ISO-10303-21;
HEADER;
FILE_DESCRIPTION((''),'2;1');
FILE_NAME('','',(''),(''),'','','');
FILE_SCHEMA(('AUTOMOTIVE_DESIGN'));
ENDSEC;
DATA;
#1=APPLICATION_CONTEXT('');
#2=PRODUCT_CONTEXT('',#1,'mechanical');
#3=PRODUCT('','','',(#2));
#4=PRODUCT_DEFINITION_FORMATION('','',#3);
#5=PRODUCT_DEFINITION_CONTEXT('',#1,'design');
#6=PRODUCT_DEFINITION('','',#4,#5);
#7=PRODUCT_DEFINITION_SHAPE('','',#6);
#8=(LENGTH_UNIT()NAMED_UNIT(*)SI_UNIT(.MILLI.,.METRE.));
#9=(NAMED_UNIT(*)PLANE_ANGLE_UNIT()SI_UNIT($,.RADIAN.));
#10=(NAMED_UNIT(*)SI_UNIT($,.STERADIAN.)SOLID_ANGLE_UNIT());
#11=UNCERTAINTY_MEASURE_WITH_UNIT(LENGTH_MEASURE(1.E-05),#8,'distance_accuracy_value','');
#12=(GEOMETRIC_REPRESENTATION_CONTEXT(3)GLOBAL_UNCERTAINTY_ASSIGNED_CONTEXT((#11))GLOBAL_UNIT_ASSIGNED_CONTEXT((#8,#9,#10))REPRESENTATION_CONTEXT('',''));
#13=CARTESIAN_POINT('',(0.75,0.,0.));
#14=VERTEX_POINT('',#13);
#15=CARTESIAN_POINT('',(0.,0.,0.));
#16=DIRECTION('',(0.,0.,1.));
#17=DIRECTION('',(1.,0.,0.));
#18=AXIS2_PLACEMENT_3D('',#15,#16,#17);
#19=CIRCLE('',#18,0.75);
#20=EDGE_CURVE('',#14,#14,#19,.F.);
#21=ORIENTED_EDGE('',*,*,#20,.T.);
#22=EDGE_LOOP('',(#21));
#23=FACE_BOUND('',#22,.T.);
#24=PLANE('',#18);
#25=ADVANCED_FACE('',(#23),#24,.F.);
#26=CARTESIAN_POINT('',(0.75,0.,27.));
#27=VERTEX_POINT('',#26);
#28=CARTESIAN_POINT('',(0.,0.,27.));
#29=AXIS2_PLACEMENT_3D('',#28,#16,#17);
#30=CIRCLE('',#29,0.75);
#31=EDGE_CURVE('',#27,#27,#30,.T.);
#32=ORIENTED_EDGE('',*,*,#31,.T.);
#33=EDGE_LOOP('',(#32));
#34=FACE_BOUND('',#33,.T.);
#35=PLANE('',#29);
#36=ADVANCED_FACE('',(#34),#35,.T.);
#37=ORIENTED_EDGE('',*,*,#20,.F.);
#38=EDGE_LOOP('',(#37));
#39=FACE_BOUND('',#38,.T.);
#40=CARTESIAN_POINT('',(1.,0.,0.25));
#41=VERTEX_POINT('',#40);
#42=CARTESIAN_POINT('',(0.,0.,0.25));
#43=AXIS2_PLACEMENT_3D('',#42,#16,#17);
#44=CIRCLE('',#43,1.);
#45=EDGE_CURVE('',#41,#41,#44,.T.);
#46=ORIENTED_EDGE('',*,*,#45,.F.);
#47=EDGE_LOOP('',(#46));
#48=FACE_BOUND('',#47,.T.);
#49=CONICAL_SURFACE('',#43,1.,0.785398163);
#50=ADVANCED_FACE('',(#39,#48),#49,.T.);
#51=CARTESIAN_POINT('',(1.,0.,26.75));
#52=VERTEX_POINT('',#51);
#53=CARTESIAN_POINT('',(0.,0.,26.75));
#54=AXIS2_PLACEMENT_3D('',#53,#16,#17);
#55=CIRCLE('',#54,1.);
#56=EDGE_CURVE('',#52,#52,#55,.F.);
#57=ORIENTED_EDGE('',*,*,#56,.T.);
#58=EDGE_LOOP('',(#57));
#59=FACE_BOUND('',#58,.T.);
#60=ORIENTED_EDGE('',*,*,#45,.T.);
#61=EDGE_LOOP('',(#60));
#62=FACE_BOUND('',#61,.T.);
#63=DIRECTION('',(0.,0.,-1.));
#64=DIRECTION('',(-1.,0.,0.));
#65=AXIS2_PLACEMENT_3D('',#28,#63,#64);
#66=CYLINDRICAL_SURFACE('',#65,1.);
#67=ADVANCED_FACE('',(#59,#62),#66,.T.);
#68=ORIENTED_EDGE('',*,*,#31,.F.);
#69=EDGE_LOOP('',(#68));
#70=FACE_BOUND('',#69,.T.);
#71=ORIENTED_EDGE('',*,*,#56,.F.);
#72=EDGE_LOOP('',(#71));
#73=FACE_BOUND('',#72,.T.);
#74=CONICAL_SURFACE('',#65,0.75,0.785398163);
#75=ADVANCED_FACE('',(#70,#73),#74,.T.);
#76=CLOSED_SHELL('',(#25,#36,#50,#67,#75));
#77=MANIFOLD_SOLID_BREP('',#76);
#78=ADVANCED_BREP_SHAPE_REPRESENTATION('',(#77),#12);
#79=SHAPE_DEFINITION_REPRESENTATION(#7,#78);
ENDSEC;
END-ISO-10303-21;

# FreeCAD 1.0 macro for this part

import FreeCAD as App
import Part
import Sketcher

V = App.Vector
Q = App.Units.Quantity


def edges_at(feature, points):
    """Names of the edges that pass closest to the given points."""
    edges = feature.Shape.Edges
    near = lambda p: min(range(len(edges)), key=lambda i: edges[i].distToShape(Part.Vertex(*p))[0])
    return sorted({f"Edge{near(p) + 1}" for p in points})

doc = App.newDocument("Part")
params = doc.addObject("Spreadsheet::Sheet", "Params")
for row, (alias, value) in enumerate([
    ("sketch1_diameter", "2 mm"),
    ("pad1_length", "27 mm"),
    ("chamfer_size", "0.25 mm"),
], start=1):
    params.set(f"A{row}", alias)
    params.set(f"B{row}", "=" + value)
    params.setAlias(f"B{row}", alias)

body = doc.addObject("PartDesign::Body", "Body")

sketch1 = body.newObject("Sketcher::SketchObject", "Sketch")
sketch1.AttachmentSupport = (doc.getObject("XY_Plane"), [""])
sketch1.MapMode = "FlatFace"
sketch1.addGeometry(Part.Circle(V(0, 0, 0), V(0, 0, 1), 1), False)
sketch1.addConstraint(Sketcher.Constraint("Coincident", 0, 3, -1, 1))
sketch1.addConstraint(Sketcher.Constraint("Diameter", 0, Q("2 mm")))
sketch1.setExpression("Constraints[1]", "Params.sketch1_diameter")
pad1 = body.newObject("PartDesign::Pad", "Pad")
pad1.Profile = sketch1
pad1.setExpression("Length", "Params.pad1_length")
doc.recompute()

chamfer = body.newObject("PartDesign::Chamfer", "Chamfer")
chamfer.Base = (pad1, edges_at(pad1, [(-1, 0, 0), (-1, 0, 27)]))
chamfer.setExpression("Size", "Params.chamfer_size")

doc.recompute()
